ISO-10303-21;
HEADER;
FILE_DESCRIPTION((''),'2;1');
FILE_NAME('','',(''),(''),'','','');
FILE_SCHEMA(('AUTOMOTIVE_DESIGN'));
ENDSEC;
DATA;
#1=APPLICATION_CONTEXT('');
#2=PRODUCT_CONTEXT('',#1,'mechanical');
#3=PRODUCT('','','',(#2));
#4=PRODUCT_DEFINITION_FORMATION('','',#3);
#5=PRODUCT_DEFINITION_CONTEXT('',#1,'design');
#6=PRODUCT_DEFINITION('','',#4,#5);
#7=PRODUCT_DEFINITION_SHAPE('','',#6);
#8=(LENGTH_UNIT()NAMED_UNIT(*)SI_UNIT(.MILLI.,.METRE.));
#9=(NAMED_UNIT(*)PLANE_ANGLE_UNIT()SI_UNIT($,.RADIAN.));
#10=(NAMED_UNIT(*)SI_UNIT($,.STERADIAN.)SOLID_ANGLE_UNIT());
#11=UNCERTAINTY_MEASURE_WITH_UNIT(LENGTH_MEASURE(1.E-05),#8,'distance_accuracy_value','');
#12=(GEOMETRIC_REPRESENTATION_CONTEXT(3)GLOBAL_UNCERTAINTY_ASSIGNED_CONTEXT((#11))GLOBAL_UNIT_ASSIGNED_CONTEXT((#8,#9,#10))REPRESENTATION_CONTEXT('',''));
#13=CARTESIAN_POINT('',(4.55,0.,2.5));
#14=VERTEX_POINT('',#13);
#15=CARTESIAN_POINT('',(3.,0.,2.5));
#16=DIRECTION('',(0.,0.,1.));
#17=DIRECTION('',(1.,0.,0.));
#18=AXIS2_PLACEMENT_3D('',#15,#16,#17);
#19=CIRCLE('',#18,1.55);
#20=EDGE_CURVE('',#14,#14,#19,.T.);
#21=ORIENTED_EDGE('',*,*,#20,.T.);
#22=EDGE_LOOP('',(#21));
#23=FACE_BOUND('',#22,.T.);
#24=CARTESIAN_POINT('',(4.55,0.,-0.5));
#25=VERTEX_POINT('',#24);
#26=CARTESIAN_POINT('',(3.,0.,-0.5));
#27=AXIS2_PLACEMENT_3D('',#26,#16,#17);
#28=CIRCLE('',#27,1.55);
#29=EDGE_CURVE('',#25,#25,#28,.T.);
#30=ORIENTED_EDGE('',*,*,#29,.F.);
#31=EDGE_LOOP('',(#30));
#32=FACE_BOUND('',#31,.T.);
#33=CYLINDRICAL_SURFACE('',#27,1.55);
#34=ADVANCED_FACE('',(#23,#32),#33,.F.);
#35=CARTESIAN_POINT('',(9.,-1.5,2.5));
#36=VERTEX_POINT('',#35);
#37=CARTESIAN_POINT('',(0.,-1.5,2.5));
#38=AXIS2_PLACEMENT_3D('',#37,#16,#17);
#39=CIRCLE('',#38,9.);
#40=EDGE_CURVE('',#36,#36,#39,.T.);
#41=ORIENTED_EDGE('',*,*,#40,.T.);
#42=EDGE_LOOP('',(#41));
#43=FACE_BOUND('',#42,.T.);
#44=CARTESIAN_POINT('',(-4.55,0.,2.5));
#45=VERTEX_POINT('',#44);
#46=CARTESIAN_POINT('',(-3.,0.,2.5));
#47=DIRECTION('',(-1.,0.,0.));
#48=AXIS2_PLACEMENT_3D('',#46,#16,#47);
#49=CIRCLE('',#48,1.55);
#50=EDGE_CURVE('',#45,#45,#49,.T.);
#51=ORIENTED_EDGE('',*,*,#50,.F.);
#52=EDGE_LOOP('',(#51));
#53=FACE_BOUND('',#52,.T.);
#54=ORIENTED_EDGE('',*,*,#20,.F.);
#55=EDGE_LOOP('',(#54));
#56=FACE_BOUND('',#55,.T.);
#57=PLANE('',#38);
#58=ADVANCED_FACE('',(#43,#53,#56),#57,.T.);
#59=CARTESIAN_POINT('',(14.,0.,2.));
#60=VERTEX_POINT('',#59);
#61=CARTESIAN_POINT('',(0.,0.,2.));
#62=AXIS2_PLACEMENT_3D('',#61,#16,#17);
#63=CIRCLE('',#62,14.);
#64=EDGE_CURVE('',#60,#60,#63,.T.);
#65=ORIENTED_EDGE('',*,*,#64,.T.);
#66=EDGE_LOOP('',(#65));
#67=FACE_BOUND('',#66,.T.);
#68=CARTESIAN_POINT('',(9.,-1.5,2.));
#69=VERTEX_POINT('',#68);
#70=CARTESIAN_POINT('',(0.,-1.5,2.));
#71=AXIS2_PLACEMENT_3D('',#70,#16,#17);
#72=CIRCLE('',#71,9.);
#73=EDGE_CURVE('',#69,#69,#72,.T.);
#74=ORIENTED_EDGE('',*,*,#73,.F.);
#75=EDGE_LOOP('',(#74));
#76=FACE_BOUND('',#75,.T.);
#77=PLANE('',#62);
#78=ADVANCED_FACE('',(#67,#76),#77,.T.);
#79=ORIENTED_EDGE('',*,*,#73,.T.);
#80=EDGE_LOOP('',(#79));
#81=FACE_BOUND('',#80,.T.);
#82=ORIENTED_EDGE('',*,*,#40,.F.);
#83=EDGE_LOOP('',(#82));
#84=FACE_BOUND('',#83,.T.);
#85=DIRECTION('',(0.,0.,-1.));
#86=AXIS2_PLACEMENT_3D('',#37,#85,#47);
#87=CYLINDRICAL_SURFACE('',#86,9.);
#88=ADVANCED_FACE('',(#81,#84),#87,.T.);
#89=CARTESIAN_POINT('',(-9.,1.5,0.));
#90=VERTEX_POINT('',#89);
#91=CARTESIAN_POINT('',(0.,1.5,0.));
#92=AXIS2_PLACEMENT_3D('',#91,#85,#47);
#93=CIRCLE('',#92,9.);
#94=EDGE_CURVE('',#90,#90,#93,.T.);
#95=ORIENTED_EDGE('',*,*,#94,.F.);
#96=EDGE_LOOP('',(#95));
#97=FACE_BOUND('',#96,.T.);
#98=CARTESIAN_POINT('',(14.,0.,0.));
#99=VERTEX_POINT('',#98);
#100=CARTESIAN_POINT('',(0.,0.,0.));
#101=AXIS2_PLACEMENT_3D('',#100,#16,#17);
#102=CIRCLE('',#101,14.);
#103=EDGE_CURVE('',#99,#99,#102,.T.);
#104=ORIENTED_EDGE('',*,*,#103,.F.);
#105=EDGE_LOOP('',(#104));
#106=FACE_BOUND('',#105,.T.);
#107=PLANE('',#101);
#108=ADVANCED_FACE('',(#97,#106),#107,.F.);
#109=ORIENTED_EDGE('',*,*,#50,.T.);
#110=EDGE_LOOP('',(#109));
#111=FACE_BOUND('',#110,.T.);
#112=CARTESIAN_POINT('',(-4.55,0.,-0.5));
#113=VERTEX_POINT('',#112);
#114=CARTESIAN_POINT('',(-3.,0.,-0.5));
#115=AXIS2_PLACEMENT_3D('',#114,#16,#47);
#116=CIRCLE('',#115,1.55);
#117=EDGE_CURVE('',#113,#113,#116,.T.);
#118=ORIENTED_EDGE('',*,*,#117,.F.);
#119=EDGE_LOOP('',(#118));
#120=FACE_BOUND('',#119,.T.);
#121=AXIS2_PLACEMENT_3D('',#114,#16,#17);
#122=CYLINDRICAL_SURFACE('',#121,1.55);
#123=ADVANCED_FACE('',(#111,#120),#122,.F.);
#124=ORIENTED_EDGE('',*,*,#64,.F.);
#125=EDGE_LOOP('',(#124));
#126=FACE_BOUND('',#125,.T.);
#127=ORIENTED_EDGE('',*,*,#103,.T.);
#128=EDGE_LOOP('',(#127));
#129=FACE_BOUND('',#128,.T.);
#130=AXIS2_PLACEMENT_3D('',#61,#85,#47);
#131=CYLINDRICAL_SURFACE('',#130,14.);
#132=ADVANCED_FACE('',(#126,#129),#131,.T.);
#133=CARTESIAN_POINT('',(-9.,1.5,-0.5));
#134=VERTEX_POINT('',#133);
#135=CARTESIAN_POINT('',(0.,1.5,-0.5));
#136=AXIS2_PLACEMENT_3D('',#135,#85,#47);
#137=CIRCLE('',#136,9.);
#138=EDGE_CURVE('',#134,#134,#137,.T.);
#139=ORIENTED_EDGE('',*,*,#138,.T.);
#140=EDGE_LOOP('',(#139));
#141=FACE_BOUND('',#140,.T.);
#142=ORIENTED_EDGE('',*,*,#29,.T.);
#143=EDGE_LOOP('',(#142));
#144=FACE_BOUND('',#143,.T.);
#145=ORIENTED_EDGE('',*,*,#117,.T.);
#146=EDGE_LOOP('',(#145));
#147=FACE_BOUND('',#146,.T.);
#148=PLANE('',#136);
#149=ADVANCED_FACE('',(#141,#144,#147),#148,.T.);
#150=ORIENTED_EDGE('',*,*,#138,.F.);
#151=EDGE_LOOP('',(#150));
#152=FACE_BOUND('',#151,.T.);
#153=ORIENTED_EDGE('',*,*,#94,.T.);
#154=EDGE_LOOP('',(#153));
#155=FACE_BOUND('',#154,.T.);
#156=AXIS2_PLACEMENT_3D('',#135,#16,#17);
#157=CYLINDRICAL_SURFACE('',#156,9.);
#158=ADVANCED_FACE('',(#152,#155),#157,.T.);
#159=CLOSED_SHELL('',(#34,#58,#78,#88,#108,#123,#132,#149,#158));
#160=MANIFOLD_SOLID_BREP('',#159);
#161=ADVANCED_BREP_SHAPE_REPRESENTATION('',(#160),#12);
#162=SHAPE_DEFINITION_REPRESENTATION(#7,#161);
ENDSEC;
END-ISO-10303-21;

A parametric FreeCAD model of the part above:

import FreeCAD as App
import Part
import Sketcher
Q = App.Units.Quantity

doc = App.newDocument("Part")
body = doc.addObject("PartDesign::Body", "Body")

# Sketch on XY plane
sketch1 = body.newObject("Sketcher::SketchObject", "Sketch")
sketch1.AttachmentSupport = (doc.getObject("XY_Plane"), [""])
sketch1.MapMode = "FlatFace"
sketch1.addGeometry(Part.Circle(App.Vector(0, 0, 0), App.Vector(0, 0, 1), 14), False)
sketch1.addConstraint([
    Sketcher.Constraint("Coincident", 0, 3, -1, 1),
    Sketcher.Constraint("Diameter", 0, Q("28 mm")),
])
pad1 = body.newObject("PartDesign::Pad", "Pad")
pad1.Profile = sketch1
pad1.Length = 2

# Sketch on XY plane
sketch2 = body.newObject("Sketcher::SketchObject", "Sketch001")
sketch2.AttachmentSupport = (doc.getObject("XY_Plane"), [""])
sketch2.MapMode = "FlatFace"
sketch2.AttachmentOffset = App.Placement(App.Vector(0, 0, 2), App.Rotation())
sketch2.addGeometry(Part.Circle(App.Vector(0, -2, 0), App.Vector(0, 0, 1), 9), False)
sketch2.addConstraint([
    Sketcher.Constraint("PointOnObject", 0, 3, -2),
    Sketcher.Constraint("Diameter", 0, Q("18 mm")),
    Sketcher.Constraint("DistanceY", 0, 3, -1, 1, Q("1.5 mm")),
])
pad2 = body.newObject("PartDesign::Pad", "Pad001")
pad2.Profile = sketch2
pad2.Length = 0.5

# Sketch on XY plane
sketch3 = body.newObject("Sketcher::SketchObject", "Sketch002")
sketch3.AttachmentSupport = (doc.getObject("XY_Plane"), [""])
sketch3.MapMode = "FlatFace"
sketch3.addGeometry(Part.Circle(App.Vector(0, 2, 0), App.Vector(0, 0, 1), 9), False)
sketch3.addConstraint([
    Sketcher.Constraint("PointOnObject", 0, 3, -2),
    Sketcher.Constraint("Diameter", 0, Q("18 mm")),
    Sketcher.Constraint("DistanceY", -1, 1, 0, 3, Q("1.5 mm")),
])
pad3 = body.newObject("PartDesign::Pad", "Pad002")
pad3.Profile = sketch3
pad3.Length = 0.5
pad3.Reversed = True

# Sketch on XY plane
sketch4 = body.newObject("Sketcher::SketchObject", "Sketch003")
sketch4.AttachmentSupport = (doc.getObject("XY_Plane"), [""])
sketch4.MapMode = "FlatFace"
sketch4.AttachmentOffset = App.Placement(App.Vector(0, 0, 2.5), App.Rotation())
sketch4.addGeometry([
    Part.Circle(App.Vector(3, 0, 0), App.Vector(0, 0, 1), 1.6),
    Part.Circle(App.Vector(-3, 0, 0), App.Vector(0, 0, 1), 1.6),
], False)
sketch4.addConstraint([
    Sketcher.Constraint("Equal", 0, 1),
    Sketcher.Constraint("Symmetric", 0, 3, 1, 3, -1, 1),
    Sketcher.Constraint("PointOnObject", 0, 3, -1),
    Sketcher.Constraint("Diameter", 0, Q("3.1 mm")),
    Sketcher.Constraint("DistanceX", -1, 1, 0, 3, Q("3 mm")),
])
pocket1 = body.newObject("PartDesign::Pocket", "Pocket")
pocket1.Profile = sketch4
pocket1.Type = "ThroughAll"

doc.recompute()
